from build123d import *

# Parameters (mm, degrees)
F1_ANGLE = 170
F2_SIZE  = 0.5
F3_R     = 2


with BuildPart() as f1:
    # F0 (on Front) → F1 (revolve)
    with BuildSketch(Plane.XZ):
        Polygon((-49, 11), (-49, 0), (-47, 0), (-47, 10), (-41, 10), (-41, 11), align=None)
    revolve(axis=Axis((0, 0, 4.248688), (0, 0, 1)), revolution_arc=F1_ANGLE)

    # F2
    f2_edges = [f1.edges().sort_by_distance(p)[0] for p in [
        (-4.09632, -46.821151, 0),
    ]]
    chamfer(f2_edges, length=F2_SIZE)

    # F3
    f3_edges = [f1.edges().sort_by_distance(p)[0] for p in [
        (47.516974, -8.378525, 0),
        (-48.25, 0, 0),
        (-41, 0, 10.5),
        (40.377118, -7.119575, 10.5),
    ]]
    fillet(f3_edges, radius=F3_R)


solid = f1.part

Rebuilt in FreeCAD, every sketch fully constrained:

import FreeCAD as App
import Part
import Sketcher
from FreeCAD import Vector


def edges_at(feature, points):
    """Names of the edges that pass closest to the given points."""
    edges = feature.Shape.Edges
    near = lambda p: min(range(len(edges)), key=lambda i: edges[i].distToShape(Part.Vertex(*p))[0])
    return sorted({f"Edge{near(p) + 1}" for p in points})


def add_polygon(sketch, points):
    """Adds a closed chain of lines whose ends are joined by coincident constraints."""
    first, n = sketch.GeometryCount, len(points)
    for a, b in zip(points, points[1:] + points[:1]):
        sketch.addGeometry(Part.LineSegment(App.Vector(*a, 0), App.Vector(*b, 0)), False)
    for i in range(n):
        sketch.addConstraint(Sketcher.Constraint("Coincident", first + i, 2, first + (i + 1) % n, 1))

doc = App.newDocument("Part")
body = doc.addObject("PartDesign::Body", "Body")

sketch1 = doc.addObject("Sketcher::SketchObject", "Sketch")
body.addObject(sketch1)
sketch1.AttachmentSupport = (doc.XZ_Plane, [""])
sketch1.MapMode = "FlatFace"
add_polygon(sketch1, [(-49, 11), (-49, 0), (-47, 0), (-47, 10), (-41, 10), (-41, 11)])
sketch1.addConstraint(Sketcher.Constraint("Vertical", 0))
sketch1.addConstraint(Sketcher.Constraint("Horizontal", 1))
sketch1.addConstraint(Sketcher.Constraint("Vertical", 2))
sketch1.addConstraint(Sketcher.Constraint("Horizontal", 3))
sketch1.addConstraint(Sketcher.Constraint("Vertical", 4))
sketch1.addConstraint(Sketcher.Constraint("Horizontal", 5))
sketch1.addConstraint(Sketcher.Constraint("PointOnObject", 0, 2, -1))
sketch1.addConstraint(Sketcher.Constraint("DistanceX", 1, 1, 1, 2, 2.0))
sketch1.addConstraint(Sketcher.Constraint("DistanceX", 3, 1, 3, 2, 6.0))
sketch1.addConstraint(Sketcher.Constraint("DistanceY", 0, 2, 0, 1, 11.0))
sketch1.addConstraint(Sketcher.Constraint("DistanceY", 2, 1, 2, 2, 10.0))
sketch1.addConstraint(Sketcher.Constraint("DistanceX", 0, 2, -1, 1, 49.0))
revolution = doc.addObject("PartDesign::Revolution", "Revolution")
body.addObject(revolution)
revolution.Profile = sketch1
revolution.ReferenceAxis = (sketch1, ["V_Axis"])
revolution.Angle = 170
doc.recompute()

chamfer = doc.addObject("PartDesign::Chamfer", "Chamfer")
body.addObject(chamfer)
chamfer.Base = (revolution, edges_at(revolution, [(-4.096, -46.821, 0)]))
chamfer.Size = 0.5
doc.recompute()

fillet = doc.addObject("PartDesign::Fillet", "Fillet")
body.addObject(fillet)
fillet.Base = (chamfer, edges_at(chamfer, [
    (47.517, -8.379, 0),
    (-48.25, 0, 0),
    (-41, 0, 10.5),
    (40.377, -7.12, 10.5),
]))
fillet.Radius = 2

doc.recompute()
